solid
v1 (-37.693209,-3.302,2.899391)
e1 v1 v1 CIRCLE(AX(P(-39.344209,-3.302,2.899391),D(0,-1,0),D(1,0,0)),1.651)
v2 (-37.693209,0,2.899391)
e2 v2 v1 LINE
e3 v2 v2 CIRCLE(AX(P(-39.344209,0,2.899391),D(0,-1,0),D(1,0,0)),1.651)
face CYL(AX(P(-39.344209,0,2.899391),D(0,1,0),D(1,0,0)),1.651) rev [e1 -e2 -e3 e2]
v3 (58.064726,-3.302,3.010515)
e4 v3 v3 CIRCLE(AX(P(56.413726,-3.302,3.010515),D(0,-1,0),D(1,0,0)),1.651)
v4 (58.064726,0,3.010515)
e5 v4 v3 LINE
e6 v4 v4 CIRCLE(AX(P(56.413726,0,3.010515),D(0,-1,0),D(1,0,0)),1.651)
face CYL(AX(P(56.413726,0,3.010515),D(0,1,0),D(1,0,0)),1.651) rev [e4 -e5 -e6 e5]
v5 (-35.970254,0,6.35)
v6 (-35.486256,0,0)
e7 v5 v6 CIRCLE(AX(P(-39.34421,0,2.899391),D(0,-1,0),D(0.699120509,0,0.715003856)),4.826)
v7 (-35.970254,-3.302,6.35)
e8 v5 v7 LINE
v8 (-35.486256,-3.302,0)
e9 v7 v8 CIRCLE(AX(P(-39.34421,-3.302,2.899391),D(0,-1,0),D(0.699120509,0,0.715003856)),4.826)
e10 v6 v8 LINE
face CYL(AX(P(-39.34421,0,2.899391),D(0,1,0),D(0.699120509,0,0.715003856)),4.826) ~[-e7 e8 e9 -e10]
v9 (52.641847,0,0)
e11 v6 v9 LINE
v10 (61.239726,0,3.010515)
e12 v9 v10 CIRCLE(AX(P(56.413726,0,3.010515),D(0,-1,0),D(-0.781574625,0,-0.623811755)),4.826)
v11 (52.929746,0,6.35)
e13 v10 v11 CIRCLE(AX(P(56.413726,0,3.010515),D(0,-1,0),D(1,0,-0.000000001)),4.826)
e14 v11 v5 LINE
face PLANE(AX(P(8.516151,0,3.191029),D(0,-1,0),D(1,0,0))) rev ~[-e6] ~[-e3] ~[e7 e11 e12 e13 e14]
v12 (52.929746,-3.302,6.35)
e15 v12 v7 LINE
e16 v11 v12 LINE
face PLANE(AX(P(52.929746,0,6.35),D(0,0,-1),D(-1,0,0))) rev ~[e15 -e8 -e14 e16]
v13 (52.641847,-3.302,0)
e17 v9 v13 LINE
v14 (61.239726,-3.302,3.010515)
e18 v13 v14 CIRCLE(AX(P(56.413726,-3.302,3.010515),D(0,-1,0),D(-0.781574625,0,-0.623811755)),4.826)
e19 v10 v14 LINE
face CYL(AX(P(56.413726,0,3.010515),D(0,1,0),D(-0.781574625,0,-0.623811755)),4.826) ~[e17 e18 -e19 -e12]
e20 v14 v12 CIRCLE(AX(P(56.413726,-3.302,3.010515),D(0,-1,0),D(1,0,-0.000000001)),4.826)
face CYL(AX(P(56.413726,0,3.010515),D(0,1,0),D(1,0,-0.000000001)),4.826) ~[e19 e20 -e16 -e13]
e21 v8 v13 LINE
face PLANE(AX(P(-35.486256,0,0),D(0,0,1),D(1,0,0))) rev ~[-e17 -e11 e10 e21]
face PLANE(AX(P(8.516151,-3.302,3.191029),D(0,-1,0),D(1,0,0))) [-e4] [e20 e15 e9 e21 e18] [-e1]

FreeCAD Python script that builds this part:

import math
import FreeCAD as App
import Part
import Sketcher
Q = App.Units.Quantity

doc = App.newDocument("Part")
body = doc.addObject("PartDesign::Body", "Body")

# Sketch on XZ plane
sketch1 = body.newObject("Sketcher::SketchObject", "Sketch")
sketch1.AttachmentSupport = (doc.getObject("XZ_Plane"), [""])
sketch1.MapMode = "FlatFace"
sketch1.addGeometry([
    Part.LineSegment(App.Vector(52.929746, 6.35, 0), App.Vector(-35.970254, 6.35, 0)),  # 0
    Part.ArcOfCircle(Part.Circle(App.Vector(-39.34421, 2.899391, 0), App.Vector(0, 0, 1), 4.826), math.radians(45.643515), math.radians(323.073816)),  # 1
    Part.LineSegment(App.Vector(-35.486256, 0, 0), App.Vector(52.641847, 0, 0)),  # 2
    Part.ArcOfCircle(Part.Circle(App.Vector(56.413726, 3.010515, 0), App.Vector(0, 0, 1), 4.826), math.radians(-141.404974), math.radians(-0.000006)),  # 3
    Part.ArcOfCircle(Part.Circle(App.Vector(56.413726, 3.010515, 0), App.Vector(0, 0, 1), 4.826), math.radians(0), math.radians(136.213125)),  # 4
    Part.Circle(App.Vector(-39.344209, 2.899391, 0), App.Vector(0, 0, 1), 1.651),  # 5
    Part.Circle(App.Vector(56.413726, 3.010515, 0), App.Vector(0, 0, 1), 1.651),  # 6
], False)
sketch1.addConstraint([
    Sketcher.Constraint("Coincident", 0, 2, 1, 1),
    Sketcher.Constraint("Coincident", 1, 2, 2, 1),
    Sketcher.Constraint("Coincident", 2, 2, 3, 1),
    Sketcher.Constraint("Tangent", 3, 2, 4, 1),
    Sketcher.Constraint("Coincident", 4, 2, 0, 1),
    Sketcher.Constraint("Horizontal", 0),
    Sketcher.Constraint("Horizontal", 2),
    Sketcher.Constraint("Coincident", 5, 3, 1, 3),
    Sketcher.Constraint("Coincident", 6, 3, 3, 3),
    Sketcher.Constraint("Equal", 1, 3),
    Sketcher.Constraint("Equal", 3, 4),
    Sketcher.Constraint("Equal", 5, 6),
    Sketcher.Constraint("PointOnObject", 1, 2, -1),
    Sketcher.Constraint("Horizontal", 6, 3, 3, 2),
    Sketcher.Constraint("Diameter", 5, Q("0.13 in")),
    Sketcher.Constraint("Radius", 1, Q("0.19 in")),
    Sketcher.Constraint("DistanceX", 0, 2, 0, 1, Q("3.5 in")),
    Sketcher.Constraint("DistanceY", -1, 1, 0, 2, Q("0.25 in")),
    Sketcher.Constraint("DistanceX", 0, 2, 2, 2, 88.612101),
    Sketcher.Constraint("DistanceX", 2, 1, 2, 2, 88.128103),
    Sketcher.Constraint("DistanceX", 1, 3, -1, 1, 39.34421),
])
pad1 = body.newObject("PartDesign::Pad", "Pad")
pad1.Profile = sketch1
pad1.Length = Q("0.13 in")

doc.recompute()
